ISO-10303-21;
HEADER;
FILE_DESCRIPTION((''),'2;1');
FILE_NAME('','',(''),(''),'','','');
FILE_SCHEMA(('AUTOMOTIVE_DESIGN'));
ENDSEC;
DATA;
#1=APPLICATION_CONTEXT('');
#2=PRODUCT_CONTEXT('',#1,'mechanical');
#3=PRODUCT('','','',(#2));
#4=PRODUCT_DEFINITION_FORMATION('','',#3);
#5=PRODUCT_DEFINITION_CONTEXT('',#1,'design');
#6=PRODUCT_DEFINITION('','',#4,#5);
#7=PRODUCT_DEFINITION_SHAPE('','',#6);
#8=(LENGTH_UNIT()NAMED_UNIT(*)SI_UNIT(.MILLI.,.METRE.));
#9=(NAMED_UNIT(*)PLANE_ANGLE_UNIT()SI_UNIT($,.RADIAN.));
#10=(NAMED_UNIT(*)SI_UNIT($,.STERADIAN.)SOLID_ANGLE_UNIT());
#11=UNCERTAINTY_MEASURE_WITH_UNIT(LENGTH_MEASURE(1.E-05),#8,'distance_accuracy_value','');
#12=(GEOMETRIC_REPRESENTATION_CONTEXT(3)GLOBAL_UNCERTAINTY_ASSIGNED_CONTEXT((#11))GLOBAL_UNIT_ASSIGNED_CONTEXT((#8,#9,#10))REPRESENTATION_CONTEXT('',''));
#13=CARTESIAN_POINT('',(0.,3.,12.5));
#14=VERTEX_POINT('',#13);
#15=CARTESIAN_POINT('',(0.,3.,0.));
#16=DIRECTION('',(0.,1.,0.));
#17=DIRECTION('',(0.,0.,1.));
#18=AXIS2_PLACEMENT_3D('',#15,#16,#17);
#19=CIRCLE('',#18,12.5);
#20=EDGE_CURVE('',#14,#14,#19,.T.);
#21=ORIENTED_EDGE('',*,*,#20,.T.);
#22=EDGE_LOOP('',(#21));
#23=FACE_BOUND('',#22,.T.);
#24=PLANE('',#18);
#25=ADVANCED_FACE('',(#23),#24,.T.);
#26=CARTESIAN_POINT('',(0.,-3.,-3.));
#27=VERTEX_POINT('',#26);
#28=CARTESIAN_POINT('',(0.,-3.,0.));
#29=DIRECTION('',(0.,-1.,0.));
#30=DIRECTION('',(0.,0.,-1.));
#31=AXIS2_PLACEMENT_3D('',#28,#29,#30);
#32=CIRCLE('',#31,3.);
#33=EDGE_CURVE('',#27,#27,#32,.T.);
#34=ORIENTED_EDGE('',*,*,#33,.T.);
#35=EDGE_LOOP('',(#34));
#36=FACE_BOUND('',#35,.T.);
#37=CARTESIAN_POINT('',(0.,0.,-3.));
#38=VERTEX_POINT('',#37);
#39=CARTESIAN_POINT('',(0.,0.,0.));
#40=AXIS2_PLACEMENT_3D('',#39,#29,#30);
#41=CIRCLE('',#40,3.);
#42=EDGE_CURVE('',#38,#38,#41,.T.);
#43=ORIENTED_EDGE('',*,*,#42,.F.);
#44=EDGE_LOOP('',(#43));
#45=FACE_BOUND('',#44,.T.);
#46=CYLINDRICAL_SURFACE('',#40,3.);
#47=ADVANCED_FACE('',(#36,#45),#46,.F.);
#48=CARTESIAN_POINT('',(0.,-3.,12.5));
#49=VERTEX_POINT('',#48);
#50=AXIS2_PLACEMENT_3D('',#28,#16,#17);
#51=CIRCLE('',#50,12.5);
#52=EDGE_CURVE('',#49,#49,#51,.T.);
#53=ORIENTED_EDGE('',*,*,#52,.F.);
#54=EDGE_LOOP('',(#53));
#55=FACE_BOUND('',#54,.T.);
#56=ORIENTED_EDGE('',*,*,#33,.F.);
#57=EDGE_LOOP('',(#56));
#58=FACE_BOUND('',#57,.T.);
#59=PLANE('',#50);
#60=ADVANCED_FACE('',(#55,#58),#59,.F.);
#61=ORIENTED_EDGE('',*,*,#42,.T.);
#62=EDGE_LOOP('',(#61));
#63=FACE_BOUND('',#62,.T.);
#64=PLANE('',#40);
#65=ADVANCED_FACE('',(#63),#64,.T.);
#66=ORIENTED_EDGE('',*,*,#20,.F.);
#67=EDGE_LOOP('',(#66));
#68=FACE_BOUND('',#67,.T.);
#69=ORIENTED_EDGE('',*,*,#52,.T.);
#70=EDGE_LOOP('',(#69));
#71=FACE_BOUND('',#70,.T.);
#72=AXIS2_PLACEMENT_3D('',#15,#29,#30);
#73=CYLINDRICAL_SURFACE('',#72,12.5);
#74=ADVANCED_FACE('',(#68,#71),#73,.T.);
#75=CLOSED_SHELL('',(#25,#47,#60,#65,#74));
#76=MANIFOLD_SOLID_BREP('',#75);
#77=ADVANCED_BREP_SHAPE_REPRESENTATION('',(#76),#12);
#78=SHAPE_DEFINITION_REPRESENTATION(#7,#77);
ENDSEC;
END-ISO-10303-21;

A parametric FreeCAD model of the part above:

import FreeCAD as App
import Part
import Sketcher

V = App.Vector

doc = App.newDocument("Part")
body = doc.addObject("PartDesign::Body", "Body")

# Sketch on XZ plane
sketch1 = doc.addObject("Sketcher::SketchObject", "Sketch")
body.addObject(sketch1)
sketch1.AttachmentSupport = (doc.XZ_Plane, [""])
sketch1.MapMode = "FlatFace"
sketch1.addGeometry(Part.Circle(V(0, 0, 0), V(0, 0, 1), 12.5), False)
sketch1.addConstraint(Sketcher.Constraint("Coincident", 0, 3, -1, 1))
sketch1.addConstraint(Sketcher.Constraint("Diameter", 0, 25.0))
pad1 = doc.addObject("PartDesign::Pad", "Pad")
body.addObject(pad1)
pad1.Profile = sketch1
pad1.Length = 6
pad1.Midplane = True

# Sketch on XZ plane
sketch2 = doc.addObject("Sketcher::SketchObject", "Sketch001")
body.addObject(sketch2)
sketch2.AttachmentSupport = (doc.XZ_Plane, [""])
sketch2.MapMode = "FlatFace"
sketch2.AttachmentOffset = App.Placement(V(0, 0, 3), App.Rotation())
sketch2.addGeometry(Part.Circle(V(0, 0, 0), V(0, 0, 1), 3), False)
sketch2.addConstraint(Sketcher.Constraint("Coincident", 0, 3, -1, 1))
sketch2.addConstraint(Sketcher.Constraint("Diameter", 0, 6.0))
pocket1 = doc.addObject("PartDesign::Pocket", "Pocket")
body.addObject(pocket1)
pocket1.Profile = sketch2
pocket1.Length = 3

doc.recompute()
